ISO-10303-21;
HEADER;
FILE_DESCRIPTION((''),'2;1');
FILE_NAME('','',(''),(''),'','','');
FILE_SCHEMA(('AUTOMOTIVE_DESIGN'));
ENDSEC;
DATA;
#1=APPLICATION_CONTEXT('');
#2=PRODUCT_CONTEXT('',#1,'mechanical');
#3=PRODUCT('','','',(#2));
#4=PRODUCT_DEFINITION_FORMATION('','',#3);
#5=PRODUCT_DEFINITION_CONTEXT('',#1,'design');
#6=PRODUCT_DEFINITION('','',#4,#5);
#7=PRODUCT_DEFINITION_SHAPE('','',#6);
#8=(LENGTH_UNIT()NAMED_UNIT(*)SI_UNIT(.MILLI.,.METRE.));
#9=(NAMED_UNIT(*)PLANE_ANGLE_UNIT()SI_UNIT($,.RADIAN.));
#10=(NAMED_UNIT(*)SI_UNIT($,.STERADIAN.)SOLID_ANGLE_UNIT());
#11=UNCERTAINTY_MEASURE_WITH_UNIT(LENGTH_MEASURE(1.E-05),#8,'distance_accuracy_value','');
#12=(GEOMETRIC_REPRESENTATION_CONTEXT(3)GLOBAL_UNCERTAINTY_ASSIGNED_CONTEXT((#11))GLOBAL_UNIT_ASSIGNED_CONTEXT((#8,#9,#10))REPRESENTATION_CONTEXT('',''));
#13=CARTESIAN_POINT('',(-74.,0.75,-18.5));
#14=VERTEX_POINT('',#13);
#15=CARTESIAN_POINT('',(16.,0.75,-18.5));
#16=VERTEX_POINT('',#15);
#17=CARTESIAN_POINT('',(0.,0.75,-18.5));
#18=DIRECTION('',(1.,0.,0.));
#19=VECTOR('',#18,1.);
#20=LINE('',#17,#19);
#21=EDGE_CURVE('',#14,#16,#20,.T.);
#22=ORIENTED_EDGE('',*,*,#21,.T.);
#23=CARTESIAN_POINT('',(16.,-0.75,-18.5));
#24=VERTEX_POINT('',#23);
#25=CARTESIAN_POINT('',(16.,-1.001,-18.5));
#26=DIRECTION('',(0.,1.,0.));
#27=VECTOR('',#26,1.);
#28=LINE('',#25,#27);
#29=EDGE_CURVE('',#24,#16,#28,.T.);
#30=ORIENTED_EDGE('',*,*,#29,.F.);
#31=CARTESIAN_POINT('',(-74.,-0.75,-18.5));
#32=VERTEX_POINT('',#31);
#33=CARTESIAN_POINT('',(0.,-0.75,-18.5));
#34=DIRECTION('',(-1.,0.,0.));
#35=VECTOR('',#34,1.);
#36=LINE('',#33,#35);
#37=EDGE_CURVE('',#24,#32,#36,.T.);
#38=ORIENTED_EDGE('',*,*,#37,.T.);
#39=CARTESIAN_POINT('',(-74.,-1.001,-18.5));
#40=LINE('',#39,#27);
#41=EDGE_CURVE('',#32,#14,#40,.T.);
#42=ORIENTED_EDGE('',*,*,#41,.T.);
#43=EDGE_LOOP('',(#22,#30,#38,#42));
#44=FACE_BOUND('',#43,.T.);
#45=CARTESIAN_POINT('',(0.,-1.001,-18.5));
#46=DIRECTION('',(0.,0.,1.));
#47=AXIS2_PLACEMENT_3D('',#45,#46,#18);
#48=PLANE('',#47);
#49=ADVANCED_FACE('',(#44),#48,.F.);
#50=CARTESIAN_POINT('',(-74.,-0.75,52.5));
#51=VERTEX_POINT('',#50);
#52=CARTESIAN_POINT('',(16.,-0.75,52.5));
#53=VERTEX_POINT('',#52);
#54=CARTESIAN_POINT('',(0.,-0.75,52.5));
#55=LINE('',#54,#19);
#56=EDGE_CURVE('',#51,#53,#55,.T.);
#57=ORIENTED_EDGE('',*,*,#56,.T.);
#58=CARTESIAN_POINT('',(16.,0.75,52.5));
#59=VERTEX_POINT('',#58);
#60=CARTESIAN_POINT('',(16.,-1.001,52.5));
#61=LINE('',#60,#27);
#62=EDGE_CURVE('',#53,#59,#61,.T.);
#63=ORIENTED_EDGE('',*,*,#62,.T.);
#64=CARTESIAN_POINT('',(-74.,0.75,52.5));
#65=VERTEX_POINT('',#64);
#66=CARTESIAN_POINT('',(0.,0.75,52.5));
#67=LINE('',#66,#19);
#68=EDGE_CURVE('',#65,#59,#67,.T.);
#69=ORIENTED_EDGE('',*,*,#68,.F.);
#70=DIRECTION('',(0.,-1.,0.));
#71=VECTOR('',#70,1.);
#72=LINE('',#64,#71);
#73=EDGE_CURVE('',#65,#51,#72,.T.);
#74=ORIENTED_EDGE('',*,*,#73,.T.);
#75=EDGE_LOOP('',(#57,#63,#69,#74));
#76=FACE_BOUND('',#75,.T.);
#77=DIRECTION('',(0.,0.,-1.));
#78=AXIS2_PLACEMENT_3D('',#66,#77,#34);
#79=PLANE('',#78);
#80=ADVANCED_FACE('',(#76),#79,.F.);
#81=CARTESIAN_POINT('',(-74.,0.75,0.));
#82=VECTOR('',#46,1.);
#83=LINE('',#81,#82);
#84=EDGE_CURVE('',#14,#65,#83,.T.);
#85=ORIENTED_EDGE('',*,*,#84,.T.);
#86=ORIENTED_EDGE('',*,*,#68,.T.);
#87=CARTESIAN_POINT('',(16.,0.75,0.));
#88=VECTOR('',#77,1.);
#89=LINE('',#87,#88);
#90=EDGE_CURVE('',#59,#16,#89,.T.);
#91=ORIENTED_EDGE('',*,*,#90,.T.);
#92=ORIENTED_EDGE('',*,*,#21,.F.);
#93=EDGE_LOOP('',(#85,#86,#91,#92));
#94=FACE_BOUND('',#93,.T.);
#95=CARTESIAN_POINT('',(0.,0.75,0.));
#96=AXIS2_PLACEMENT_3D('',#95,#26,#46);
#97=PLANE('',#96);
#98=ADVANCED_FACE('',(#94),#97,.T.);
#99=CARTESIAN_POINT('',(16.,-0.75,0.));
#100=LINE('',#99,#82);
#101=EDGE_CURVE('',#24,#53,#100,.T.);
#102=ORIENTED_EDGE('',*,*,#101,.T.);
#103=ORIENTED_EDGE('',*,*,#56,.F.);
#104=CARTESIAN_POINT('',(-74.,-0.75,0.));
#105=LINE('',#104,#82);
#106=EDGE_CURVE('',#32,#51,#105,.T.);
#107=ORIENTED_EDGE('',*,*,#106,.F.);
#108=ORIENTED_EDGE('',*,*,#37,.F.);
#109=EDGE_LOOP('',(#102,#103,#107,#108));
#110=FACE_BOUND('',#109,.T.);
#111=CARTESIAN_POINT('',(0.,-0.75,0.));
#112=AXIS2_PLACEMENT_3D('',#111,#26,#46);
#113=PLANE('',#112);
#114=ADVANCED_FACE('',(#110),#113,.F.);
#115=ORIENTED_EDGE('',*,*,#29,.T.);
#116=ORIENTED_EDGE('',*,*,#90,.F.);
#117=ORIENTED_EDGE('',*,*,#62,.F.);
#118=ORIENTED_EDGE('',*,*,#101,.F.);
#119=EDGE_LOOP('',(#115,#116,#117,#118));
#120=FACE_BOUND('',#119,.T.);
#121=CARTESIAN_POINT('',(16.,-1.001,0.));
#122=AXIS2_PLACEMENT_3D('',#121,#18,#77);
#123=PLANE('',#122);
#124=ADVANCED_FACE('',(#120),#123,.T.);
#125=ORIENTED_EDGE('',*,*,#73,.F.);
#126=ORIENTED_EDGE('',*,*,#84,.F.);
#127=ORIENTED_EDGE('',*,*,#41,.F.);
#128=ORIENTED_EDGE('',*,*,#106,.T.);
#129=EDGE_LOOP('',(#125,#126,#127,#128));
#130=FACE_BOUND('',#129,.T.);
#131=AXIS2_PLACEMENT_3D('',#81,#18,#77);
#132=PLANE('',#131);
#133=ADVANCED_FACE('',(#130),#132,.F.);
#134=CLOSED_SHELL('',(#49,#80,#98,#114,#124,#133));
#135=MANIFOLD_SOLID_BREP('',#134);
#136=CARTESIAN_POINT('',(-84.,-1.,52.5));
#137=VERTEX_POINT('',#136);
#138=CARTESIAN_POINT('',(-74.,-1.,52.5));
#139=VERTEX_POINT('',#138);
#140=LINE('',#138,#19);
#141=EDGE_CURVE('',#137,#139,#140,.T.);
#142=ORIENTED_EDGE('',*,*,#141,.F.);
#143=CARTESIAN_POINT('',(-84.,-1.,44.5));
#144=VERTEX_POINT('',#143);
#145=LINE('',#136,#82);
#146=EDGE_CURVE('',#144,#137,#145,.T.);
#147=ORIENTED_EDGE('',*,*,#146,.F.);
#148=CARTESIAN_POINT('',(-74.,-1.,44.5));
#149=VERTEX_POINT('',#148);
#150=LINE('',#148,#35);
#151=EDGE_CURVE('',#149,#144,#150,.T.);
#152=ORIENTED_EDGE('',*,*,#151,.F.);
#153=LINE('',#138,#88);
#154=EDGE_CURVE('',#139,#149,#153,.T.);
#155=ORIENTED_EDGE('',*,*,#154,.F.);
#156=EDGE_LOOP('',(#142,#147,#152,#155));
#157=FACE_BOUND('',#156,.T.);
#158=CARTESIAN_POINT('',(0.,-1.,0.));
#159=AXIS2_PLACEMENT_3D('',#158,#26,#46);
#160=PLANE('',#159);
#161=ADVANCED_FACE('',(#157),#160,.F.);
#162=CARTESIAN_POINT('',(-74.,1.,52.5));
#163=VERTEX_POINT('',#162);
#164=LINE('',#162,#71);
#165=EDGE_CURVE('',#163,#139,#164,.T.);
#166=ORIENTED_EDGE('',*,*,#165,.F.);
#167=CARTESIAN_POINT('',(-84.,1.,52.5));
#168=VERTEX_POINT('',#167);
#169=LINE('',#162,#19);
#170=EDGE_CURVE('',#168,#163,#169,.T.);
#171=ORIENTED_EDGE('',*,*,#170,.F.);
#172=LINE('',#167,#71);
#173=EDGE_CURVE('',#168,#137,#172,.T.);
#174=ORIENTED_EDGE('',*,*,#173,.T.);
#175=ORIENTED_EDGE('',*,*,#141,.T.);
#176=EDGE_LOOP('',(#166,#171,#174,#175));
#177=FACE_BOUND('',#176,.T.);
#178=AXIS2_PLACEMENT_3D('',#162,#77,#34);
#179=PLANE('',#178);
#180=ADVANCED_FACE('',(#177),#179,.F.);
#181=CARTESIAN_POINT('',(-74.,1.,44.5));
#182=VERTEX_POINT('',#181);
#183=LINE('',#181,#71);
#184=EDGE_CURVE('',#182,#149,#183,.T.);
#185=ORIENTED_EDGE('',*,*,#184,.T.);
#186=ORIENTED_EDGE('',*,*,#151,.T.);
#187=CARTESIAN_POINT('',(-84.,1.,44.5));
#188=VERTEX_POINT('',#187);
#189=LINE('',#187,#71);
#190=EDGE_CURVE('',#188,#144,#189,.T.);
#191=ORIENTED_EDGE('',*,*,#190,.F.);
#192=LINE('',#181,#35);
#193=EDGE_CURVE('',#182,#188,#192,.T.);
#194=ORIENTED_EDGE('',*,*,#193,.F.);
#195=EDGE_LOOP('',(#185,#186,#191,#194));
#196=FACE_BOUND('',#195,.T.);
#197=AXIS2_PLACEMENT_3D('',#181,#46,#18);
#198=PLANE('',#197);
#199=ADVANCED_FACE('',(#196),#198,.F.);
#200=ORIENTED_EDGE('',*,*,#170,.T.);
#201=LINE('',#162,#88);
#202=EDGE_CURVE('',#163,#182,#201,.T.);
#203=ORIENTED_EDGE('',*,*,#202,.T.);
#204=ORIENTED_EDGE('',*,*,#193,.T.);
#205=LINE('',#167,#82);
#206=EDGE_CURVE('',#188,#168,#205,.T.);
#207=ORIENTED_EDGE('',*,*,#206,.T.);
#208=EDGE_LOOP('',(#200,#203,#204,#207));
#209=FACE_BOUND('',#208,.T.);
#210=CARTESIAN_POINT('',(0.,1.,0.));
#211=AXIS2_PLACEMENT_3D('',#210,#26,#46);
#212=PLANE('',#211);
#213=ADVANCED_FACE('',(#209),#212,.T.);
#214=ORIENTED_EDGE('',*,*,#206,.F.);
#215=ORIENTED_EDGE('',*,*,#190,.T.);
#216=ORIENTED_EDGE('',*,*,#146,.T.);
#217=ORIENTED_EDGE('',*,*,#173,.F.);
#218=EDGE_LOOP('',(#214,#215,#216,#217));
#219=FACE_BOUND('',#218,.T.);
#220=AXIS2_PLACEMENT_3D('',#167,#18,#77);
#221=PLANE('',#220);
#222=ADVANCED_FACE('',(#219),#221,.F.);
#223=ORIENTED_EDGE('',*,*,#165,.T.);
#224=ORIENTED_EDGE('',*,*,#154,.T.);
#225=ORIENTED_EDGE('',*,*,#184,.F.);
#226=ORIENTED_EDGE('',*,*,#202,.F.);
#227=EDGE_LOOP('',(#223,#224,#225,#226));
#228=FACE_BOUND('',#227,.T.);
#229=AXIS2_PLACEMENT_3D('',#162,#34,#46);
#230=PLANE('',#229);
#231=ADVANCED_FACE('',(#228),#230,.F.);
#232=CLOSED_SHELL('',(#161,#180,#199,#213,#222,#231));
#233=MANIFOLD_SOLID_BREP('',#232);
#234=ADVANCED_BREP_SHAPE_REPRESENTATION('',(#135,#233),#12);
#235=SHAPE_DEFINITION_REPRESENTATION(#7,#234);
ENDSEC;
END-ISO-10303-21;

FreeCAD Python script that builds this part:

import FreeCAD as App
import Part
import Sketcher
from FreeCAD import Vector

doc = App.newDocument("Part")
body = doc.addObject("PartDesign::Body", "Body")

sketch1 = doc.addObject("Sketcher::SketchObject", "Sketch")
body.addObject(sketch1)
sketch1.AttachmentSupport = (doc.XZ_Plane, [""])
sketch1.MapMode = "FlatFace"
sketch1.addGeometry(Part.LineSegment(Vector(-74, -52.5, 0), Vector(-74, 52.5, 0)), False)
sketch1.addGeometry(Part.LineSegment(Vector(-74, 52.5, 0), Vector(74, 52.5, 0)), False)
sketch1.addGeometry(Part.LineSegment(Vector(74, 52.5, 0), Vector(74, -52.5, 0)), False)
sketch1.addGeometry(Part.LineSegment(Vector(74, -52.5, 0), Vector(-74, -52.5, 0)), False)
sketch1.addConstraint(Sketcher.Constraint("Coincident", 0, 2, 1, 1))
sketch1.addConstraint(Sketcher.Constraint("Coincident", 1, 2, 2, 1))
sketch1.addConstraint(Sketcher.Constraint("Coincident", 2, 2, 3, 1))
sketch1.addConstraint(Sketcher.Constraint("Coincident", 3, 2, 0, 1))
sketch1.addConstraint(Sketcher.Constraint("Vertical", 0))
sketch1.addConstraint(Sketcher.Constraint("Horizontal", 1))
sketch1.addConstraint(Sketcher.Constraint("Vertical", 2))
sketch1.addConstraint(Sketcher.Constraint("Horizontal", 3))
sketch1.addConstraint(Sketcher.Constraint("Symmetric", 0, 2, 2, 2, -1, 1))
sketch1.addConstraint(Sketcher.Constraint("DistanceX", 1, 1, 1, 2, 148.0))
sketch1.addConstraint(Sketcher.Constraint("DistanceY", 0, 1, 0, 2, 105.0))
pad1 = doc.addObject("PartDesign::Pad", "Pad")
body.addObject(pad1)
pad1.Profile = sketch1
pad1.Length = 1.5
pad1.Midplane = True

sketch2 = doc.addObject("Sketcher::SketchObject", "Sketch001")
body.addObject(sketch2)
sketch2.AttachmentSupport = (doc.XZ_Plane, [""])
sketch2.MapMode = "FlatFace"
sketch2.AttachmentOffset = App.Placement(Vector(0, 0, -0.75), App.Rotation())
sketch2.addGeometry(Part.LineSegment(Vector(16, -18.5, 0), Vector(16, 52.5, 0)), False)
sketch2.addGeometry(Part.LineSegment(Vector(16, 52.5, 0), Vector(74, 52.5, 0)), False)
sketch2.addGeometry(Part.LineSegment(Vector(74, 52.5, 0), Vector(74, -52.5, 0)), False)
sketch2.addGeometry(Part.LineSegment(Vector(74, -52.5, 0), Vector(-74, -52.5, 0)), False)
sketch2.addGeometry(Part.LineSegment(Vector(-74, -52.5, 0), Vector(-74, -18.5, 0)), False)
sketch2.addGeometry(Part.LineSegment(Vector(-74, -18.5, 0), Vector(16, -18.5, 0)), False)
sketch2.addConstraint(Sketcher.Constraint("Coincident", 0, 2, 1, 1))
sketch2.addConstraint(Sketcher.Constraint("Coincident", 1, 2, 2, 1))
sketch2.addConstraint(Sketcher.Constraint("Coincident", 2, 2, 3, 1))
sketch2.addConstraint(Sketcher.Constraint("Coincident", 3, 2, 4, 1))
sketch2.addConstraint(Sketcher.Constraint("Coincident", 4, 2, 5, 1))
sketch2.addConstraint(Sketcher.Constraint("Coincident", 5, 2, 0, 1))
sketch2.addConstraint(Sketcher.Constraint("Vertical", 0))
sketch2.addConstraint(Sketcher.Constraint("Horizontal", 1))
sketch2.addConstraint(Sketcher.Constraint("Vertical", 2))
sketch2.addConstraint(Sketcher.Constraint("Horizontal", 3))
sketch2.addConstraint(Sketcher.Constraint("Vertical", 4))
sketch2.addConstraint(Sketcher.Constraint("Horizontal", 5))
sketch2.addConstraint(Sketcher.Constraint("Symmetric", 1, 2, 3, 2, -1, 1))
sketch2.addConstraint(Sketcher.Constraint("DistanceX", 1, 1, 1, 2, 58.0))
sketch2.addConstraint(Sketcher.Constraint("DistanceX", 3, 2, 3, 1, 148.0))
sketch2.addConstraint(Sketcher.Constraint("DistanceY", 0, 1, 0, 2, 71.0))
sketch2.addConstraint(Sketcher.Constraint("DistanceY", 2, 2, 2, 1, 105.0))
pocket1 = doc.addObject("PartDesign::Pocket", "Pocket")
body.addObject(pocket1)
pocket1.Profile = sketch2
pocket1.Length = 1.5
pocket1.Reversed = True
body2 = doc.addObject("PartDesign::Body", "Body001")

sketch3 = doc.addObject("Sketcher::SketchObject", "Sketch002")
body2.addObject(sketch3)
sketch3.AttachmentSupport = (doc.getObject("XZ_Plane001"), [""])
sketch3.MapMode = "FlatFace"
sketch3.addGeometry(Part.LineSegment(Vector(-84, 44.5, 0), Vector(-84, 52.5, 0)), False)
sketch3.addGeometry(Part.LineSegment(Vector(-84, 52.5, 0), Vector(-74, 52.5, 0)), False)
sketch3.addGeometry(Part.LineSegment(Vector(-74, 52.5, 0), Vector(-74, 44.5, 0)), False)
sketch3.addGeometry(Part.LineSegment(Vector(-74, 44.5, 0), Vector(-84, 44.5, 0)), False)
sketch3.addConstraint(Sketcher.Constraint("Coincident", 0, 2, 1, 1))
sketch3.addConstraint(Sketcher.Constraint("Coincident", 1, 2, 2, 1))
sketch3.addConstraint(Sketcher.Constraint("Coincident", 2, 2, 3, 1))
sketch3.addConstraint(Sketcher.Constraint("Coincident", 3, 2, 0, 1))
sketch3.addConstraint(Sketcher.Constraint("Vertical", 0))
sketch3.addConstraint(Sketcher.Constraint("Horizontal", 1))
sketch3.addConstraint(Sketcher.Constraint("Vertical", 2))
sketch3.addConstraint(Sketcher.Constraint("Horizontal", 3))
sketch3.addConstraint(Sketcher.Constraint("DistanceX", 1, 1, 1, 2, 10.0))
sketch3.addConstraint(Sketcher.Constraint("DistanceY", 0, 1, 0, 2, 8.0))
sketch3.addConstraint(Sketcher.Constraint("DistanceX", 0, 2, -1, 1, 84.0))
sketch3.addConstraint(Sketcher.Constraint("DistanceY", -1, 1, 0, 2, 52.5))
pad2 = doc.addObject("PartDesign::Pad", "Pad001")
body2.addObject(pad2)
pad2.Profile = sketch3
pad2.Length = 2
pad2.Midplane = True

doc.recompute()
